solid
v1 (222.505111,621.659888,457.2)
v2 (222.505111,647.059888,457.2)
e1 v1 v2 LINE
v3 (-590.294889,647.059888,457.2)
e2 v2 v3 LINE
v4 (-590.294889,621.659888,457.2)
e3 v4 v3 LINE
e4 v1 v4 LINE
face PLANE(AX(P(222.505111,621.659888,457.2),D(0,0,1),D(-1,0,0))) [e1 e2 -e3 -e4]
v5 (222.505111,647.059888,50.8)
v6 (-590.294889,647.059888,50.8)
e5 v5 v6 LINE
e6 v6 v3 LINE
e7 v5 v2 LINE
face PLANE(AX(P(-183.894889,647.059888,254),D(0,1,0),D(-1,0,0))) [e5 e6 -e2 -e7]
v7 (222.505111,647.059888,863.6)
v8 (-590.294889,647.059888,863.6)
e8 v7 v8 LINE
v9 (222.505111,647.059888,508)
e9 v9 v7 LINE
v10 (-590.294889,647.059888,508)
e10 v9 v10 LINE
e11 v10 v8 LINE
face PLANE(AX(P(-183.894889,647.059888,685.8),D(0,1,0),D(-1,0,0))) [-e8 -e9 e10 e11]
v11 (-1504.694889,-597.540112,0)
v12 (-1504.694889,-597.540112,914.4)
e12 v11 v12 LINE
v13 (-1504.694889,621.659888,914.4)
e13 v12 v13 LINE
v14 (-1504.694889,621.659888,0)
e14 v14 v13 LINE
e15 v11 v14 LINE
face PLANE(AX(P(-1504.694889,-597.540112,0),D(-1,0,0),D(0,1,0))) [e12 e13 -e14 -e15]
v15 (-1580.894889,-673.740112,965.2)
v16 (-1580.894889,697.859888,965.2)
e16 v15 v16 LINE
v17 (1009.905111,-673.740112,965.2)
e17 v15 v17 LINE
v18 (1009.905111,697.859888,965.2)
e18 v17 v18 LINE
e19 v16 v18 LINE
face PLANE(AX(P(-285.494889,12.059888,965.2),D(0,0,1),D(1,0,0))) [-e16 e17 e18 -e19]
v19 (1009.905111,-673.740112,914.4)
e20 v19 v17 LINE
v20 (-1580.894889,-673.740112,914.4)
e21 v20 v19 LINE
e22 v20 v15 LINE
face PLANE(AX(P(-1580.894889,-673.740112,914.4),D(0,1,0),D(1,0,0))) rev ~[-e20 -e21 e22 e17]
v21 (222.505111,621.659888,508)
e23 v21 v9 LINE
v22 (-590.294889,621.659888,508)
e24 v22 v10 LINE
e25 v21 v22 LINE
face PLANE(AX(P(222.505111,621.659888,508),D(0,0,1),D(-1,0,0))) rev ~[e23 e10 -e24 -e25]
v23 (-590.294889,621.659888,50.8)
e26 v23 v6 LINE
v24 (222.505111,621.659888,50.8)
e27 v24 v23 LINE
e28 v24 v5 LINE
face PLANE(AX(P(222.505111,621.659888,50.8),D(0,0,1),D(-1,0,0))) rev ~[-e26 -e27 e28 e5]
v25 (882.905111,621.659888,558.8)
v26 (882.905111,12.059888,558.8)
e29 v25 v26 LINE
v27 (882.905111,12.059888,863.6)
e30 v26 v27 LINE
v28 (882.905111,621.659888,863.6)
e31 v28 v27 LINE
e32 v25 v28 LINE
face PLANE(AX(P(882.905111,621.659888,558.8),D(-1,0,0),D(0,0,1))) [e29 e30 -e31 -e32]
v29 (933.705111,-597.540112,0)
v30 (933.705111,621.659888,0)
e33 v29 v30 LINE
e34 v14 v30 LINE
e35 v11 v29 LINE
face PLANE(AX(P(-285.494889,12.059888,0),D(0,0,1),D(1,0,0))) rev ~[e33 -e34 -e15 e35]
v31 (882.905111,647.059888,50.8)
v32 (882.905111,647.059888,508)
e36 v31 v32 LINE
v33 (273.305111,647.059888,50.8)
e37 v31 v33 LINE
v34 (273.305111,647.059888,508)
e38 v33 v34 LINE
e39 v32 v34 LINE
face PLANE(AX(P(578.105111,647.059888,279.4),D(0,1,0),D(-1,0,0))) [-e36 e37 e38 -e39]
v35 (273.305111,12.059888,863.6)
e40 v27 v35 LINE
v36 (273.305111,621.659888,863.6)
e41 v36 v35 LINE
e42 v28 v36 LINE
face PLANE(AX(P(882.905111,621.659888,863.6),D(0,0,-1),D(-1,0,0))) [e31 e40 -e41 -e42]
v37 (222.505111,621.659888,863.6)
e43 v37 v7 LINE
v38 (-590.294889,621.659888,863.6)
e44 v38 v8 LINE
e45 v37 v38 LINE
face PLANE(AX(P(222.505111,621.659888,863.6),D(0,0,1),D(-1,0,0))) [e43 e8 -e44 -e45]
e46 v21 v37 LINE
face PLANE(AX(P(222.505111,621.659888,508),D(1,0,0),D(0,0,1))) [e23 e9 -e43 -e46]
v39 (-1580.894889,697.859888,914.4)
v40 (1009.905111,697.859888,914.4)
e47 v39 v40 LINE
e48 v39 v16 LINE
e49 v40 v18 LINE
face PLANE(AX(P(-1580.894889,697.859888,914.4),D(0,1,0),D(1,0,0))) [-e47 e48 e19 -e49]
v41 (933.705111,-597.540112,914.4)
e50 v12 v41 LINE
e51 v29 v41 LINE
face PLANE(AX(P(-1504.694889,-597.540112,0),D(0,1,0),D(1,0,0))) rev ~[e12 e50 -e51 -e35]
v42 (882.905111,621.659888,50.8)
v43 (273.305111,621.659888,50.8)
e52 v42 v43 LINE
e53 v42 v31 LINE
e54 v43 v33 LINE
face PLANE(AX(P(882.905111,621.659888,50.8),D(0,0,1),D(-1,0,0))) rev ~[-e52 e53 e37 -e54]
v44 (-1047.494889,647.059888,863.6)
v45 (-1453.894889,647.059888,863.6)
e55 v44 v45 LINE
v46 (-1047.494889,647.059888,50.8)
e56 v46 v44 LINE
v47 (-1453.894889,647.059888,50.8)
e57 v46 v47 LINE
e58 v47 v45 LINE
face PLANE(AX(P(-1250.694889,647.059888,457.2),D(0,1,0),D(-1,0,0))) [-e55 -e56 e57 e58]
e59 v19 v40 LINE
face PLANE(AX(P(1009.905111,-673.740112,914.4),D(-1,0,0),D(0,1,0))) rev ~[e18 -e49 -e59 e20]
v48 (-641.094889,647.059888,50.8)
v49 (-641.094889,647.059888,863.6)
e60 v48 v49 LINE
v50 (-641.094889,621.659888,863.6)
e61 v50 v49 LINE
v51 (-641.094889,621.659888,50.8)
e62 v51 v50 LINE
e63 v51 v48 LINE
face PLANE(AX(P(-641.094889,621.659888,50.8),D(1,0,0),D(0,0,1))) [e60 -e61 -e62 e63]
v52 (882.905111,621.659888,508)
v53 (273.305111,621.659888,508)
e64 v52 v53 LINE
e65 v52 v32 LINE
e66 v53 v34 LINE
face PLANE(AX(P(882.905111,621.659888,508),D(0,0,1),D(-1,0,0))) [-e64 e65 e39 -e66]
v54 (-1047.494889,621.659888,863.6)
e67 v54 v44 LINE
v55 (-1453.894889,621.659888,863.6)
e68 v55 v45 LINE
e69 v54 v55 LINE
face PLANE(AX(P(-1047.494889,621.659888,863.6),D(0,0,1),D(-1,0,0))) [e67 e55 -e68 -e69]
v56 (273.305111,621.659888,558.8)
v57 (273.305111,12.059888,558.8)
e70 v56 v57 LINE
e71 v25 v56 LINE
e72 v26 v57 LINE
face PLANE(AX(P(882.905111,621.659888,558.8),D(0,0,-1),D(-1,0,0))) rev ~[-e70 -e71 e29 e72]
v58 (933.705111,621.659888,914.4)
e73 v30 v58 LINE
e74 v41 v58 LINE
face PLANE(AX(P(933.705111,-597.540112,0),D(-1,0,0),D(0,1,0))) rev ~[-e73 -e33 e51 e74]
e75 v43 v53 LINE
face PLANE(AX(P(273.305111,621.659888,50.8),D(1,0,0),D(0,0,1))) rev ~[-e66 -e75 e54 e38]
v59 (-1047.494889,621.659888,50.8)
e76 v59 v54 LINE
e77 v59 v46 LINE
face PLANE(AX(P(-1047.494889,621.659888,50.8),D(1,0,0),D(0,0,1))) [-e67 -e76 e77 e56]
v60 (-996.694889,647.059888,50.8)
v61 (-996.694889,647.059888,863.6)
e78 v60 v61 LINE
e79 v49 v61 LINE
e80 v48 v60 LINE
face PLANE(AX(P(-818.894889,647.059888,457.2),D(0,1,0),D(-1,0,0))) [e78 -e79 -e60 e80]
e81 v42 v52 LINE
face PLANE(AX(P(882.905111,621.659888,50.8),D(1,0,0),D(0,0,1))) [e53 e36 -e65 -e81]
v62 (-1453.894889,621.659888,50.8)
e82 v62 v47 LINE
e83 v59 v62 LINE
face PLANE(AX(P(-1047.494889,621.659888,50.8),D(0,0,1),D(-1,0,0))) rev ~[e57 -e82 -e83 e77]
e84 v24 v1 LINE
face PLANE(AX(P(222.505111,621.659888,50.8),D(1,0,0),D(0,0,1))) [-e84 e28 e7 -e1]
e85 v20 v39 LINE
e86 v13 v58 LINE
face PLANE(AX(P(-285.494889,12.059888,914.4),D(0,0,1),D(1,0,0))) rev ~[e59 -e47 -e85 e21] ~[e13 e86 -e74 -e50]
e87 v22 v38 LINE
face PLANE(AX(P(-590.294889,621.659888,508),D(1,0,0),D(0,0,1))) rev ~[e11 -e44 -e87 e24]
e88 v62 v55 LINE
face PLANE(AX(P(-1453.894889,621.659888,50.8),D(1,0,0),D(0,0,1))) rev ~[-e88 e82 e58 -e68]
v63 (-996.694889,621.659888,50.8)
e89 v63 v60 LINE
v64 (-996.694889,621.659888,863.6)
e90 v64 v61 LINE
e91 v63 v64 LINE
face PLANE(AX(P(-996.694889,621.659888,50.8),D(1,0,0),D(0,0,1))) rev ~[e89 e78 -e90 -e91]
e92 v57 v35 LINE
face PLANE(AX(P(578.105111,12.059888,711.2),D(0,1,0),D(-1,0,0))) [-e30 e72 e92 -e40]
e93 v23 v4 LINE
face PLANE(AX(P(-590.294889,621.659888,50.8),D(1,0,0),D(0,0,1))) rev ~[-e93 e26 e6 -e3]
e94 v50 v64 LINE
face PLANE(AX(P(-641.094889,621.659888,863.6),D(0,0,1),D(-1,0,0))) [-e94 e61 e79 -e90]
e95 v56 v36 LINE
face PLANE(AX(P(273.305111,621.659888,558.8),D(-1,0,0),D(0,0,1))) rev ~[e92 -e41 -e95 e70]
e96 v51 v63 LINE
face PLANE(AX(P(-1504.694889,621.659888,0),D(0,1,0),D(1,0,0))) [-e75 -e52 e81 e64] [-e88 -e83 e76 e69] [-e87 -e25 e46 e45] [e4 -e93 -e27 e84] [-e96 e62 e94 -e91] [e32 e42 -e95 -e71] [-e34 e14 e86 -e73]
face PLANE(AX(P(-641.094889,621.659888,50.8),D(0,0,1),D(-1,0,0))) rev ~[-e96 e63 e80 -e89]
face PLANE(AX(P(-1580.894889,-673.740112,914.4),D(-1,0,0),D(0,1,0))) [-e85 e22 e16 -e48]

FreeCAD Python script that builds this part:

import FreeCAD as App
import Part
import Sketcher

V = App.Vector
Q = App.Units.Quantity

doc = App.newDocument("Part")
body = doc.addObject("PartDesign::Body", "Body")

sketch1 = doc.addObject("Sketcher::SketchObject", "Sketch")
body.addObject(sketch1)
sketch1.AttachmentSupport = (doc.XY_Plane, [""])
sketch1.MapMode = "FlatFace"
sketch1.addGeometry(Part.LineSegment(V(-1505, 622, 0), V(-1505, -598, 0)), False)
sketch1.addGeometry(Part.LineSegment(V(-1505, -598, 0), V(934, -598, 0)), False)
sketch1.addGeometry(Part.LineSegment(V(934, -598, 0), V(934, 622, 0)), False)
sketch1.addGeometry(Part.LineSegment(V(934, 622, 0), V(-1505, 622, 0)), False)
sketch1.addConstraint(Sketcher.Constraint("Coincident", 0, 2, 1, 1))
sketch1.addConstraint(Sketcher.Constraint("Coincident", 1, 2, 2, 1))
sketch1.addConstraint(Sketcher.Constraint("Coincident", 2, 2, 3, 1))
sketch1.addConstraint(Sketcher.Constraint("Coincident", 3, 2, 0, 1))
sketch1.addConstraint(Sketcher.Constraint("Vertical", 0))
sketch1.addConstraint(Sketcher.Constraint("Horizontal", 1))
sketch1.addConstraint(Sketcher.Constraint("Vertical", 2))
sketch1.addConstraint(Sketcher.Constraint("Horizontal", 3))
sketch1.addConstraint(Sketcher.Constraint("DistanceX", 1, 1, 1, 2, Q("96 in")))
sketch1.addConstraint(Sketcher.Constraint("DistanceY", 0, 2, 0, 1, Q("48 in")))
sketch1.addConstraint(Sketcher.Constraint("DistanceX", 0, 2, -1, 1, Q("1504.694889 mm")))
sketch1.addConstraint(Sketcher.Constraint("DistanceY", 0, 2, -1, 1, Q("597.540112 mm")))
pad1 = doc.addObject("PartDesign::Pad", "Pad")
body.addObject(pad1)
pad1.Profile = sketch1
pad1.Length = Q("36 in")

sketch2 = doc.addObject("Sketcher::SketchObject", "Sketch001")
body.addObject(sketch2)
sketch2.AttachmentSupport = (doc.XY_Plane, [""])
sketch2.MapMode = "FlatFace"
sketch2.AttachmentOffset = App.Placement(V(0, 0, 36 * 25.4), App.Rotation())
sketch2.addGeometry(Part.LineSegment(V(-1581, 698, 0), V(-1581, -674, 0)), False)
sketch2.addGeometry(Part.LineSegment(V(-1581, -674, 0), V(1010, -674, 0)), False)
sketch2.addGeometry(Part.LineSegment(V(1010, -674, 0), V(1010, 698, 0)), False)
sketch2.addGeometry(Part.LineSegment(V(1010, 698, 0), V(-1581, 698, 0)), False)
sketch2.addConstraint(Sketcher.Constraint("Coincident", 0, 2, 1, 1))
sketch2.addConstraint(Sketcher.Constraint("Coincident", 1, 2, 2, 1))
sketch2.addConstraint(Sketcher.Constraint("Coincident", 2, 2, 3, 1))
sketch2.addConstraint(Sketcher.Constraint("Coincident", 3, 2, 0, 1))
sketch2.addConstraint(Sketcher.Constraint("Vertical", 0))
sketch2.addConstraint(Sketcher.Constraint("Horizontal", 1))
sketch2.addConstraint(Sketcher.Constraint("Vertical", 2))
sketch2.addConstraint(Sketcher.Constraint("Horizontal", 3))
sketch2.addConstraint(Sketcher.Constraint("DistanceX", 1, 1, 1, 2, Q("102 in")))
sketch2.addConstraint(Sketcher.Constraint("DistanceY", 0, 2, 0, 1, Q("54 in")))
sketch2.addConstraint(Sketcher.Constraint("DistanceX", 0, 2, -1, 1, Q("1580.894889 mm")))
sketch2.addConstraint(Sketcher.Constraint("DistanceY", 0, 2, -1, 1, Q("673.740112 mm")))
pad2 = doc.addObject("PartDesign::Pad", "Pad001")
body.addObject(pad2)
pad2.Profile = sketch2
pad2.Length = Q("2 in")

sketch3 = doc.addObject("Sketcher::SketchObject", "Sketch002")
body.addObject(sketch3)
sketch3.AttachmentSupport = (doc.XZ_Plane, [""])
sketch3.MapMode = "FlatFace"
sketch3.AttachmentOffset = App.Placement(V(0, 0, -621.659888), App.Rotation())
sketch3.addGeometry(Part.LineSegment(V(883, 864, 0), V(883, 559, 0)), False)
sketch3.addGeometry(Part.LineSegment(V(883, 559, 0), V(273, 559, 0)), False)
sketch3.addGeometry(Part.LineSegment(V(273, 559, 0), V(273, 864, 0)), False)
sketch3.addGeometry(Part.LineSegment(V(273, 864, 0), V(883, 864, 0)), False)
sketch3.addConstraint(Sketcher.Constraint("Coincident", 0, 2, 1, 1))
sketch3.addConstraint(Sketcher.Constraint("Coincident", 1, 2, 2, 1))
sketch3.addConstraint(Sketcher.Constraint("Coincident", 2, 2, 3, 1))
sketch3.addConstraint(Sketcher.Constraint("Coincident", 3, 2, 0, 1))
sketch3.addConstraint(Sketcher.Constraint("Vertical", 0))
sketch3.addConstraint(Sketcher.Constraint("Horizontal", 1))
sketch3.addConstraint(Sketcher.Constraint("Vertical", 2))
sketch3.addConstraint(Sketcher.Constraint("Horizontal", 3))
sketch3.addConstraint(Sketcher.Constraint("DistanceX", 1, 2, 1, 1, Q("24 in")))
sketch3.addConstraint(Sketcher.Constraint("DistanceY", 0, 2, 0, 1, Q("12 in")))
sketch3.addConstraint(Sketcher.Constraint("DistanceY", -1, 1, 0, 2, Q("22 in")))
sketch3.addConstraint(Sketcher.Constraint("DistanceX", -1, 1, 0, 2, Q("882.905111 mm")))
pocket1 = doc.addObject("PartDesign::Pocket", "Pocket")
body.addObject(pocket1)
pocket1.Profile = sketch3
pocket1.Length = Q("24 in")
pocket1.Reversed = True

sketch4 = doc.addObject("Sketcher::SketchObject", "Sketch003")
body.addObject(sketch4)
sketch4.AttachmentSupport = (doc.XZ_Plane, [""])
sketch4.MapMode = "FlatFace"
sketch4.AttachmentOffset = App.Placement(V(0, 0, -621.659888), App.Rotation())
sketch4.addGeometry(Part.LineSegment(V(883, 508, 0), V(883, 51, 0)), False)
sketch4.addGeometry(Part.LineSegment(V(883, 51, 0), V(273, 51, 0)), False)
sketch4.addGeometry(Part.LineSegment(V(273, 51, 0), V(273, 508, 0)), False)
sketch4.addGeometry(Part.LineSegment(V(273, 508, 0), V(883, 508, 0)), False)
sketch4.addGeometry(Part.LineSegment(V(223, 864, 0), V(223, 508, 0)), False)
sketch4.addGeometry(Part.LineSegment(V(223, 508, 0), V(-590, 508, 0)), False)
sketch4.addGeometry(Part.LineSegment(V(-590, 508, 0), V(-590, 864, 0)), False)
sketch4.addGeometry(Part.LineSegment(V(-590, 864, 0), V(223, 864, 0)), False)
sketch4.addGeometry(Part.LineSegment(V(223, 457, 0), V(223, 51, 0)), False)
sketch4.addGeometry(Part.LineSegment(V(223, 51, 0), V(-590, 51, 0)), False)
sketch4.addGeometry(Part.LineSegment(V(-590, 51, 0), V(-590, 457, 0)), False)
sketch4.addGeometry(Part.LineSegment(V(-590, 457, 0), V(223, 457, 0)), False)
sketch4.addGeometry(Part.LineSegment(V(-641, 864, 0), V(-641, 51, 0)), False)
sketch4.addGeometry(Part.LineSegment(V(-641, 51, 0), V(-997, 51, 0)), False)
sketch4.addGeometry(Part.LineSegment(V(-997, 51, 0), V(-997, 864, 0)), False)
sketch4.addGeometry(Part.LineSegment(V(-997, 864, 0), V(-641, 864, 0)), False)
sketch4.addGeometry(Part.LineSegment(V(-1047, 864, 0), V(-1047, 51, 0)), False)
sketch4.addGeometry(Part.LineSegment(V(-1047, 51, 0), V(-1454, 51, 0)), False)
sketch4.addGeometry(Part.LineSegment(V(-1454, 51, 0), V(-1454, 864, 0)), False)
sketch4.addGeometry(Part.LineSegment(V(-1454, 864, 0), V(-1047, 864, 0)), False)
sketch4.addConstraint(Sketcher.Constraint("Coincident", 0, 2, 1, 1))
sketch4.addConstraint(Sketcher.Constraint("Coincident", 1, 2, 2, 1))
sketch4.addConstraint(Sketcher.Constraint("Coincident", 2, 2, 3, 1))
sketch4.addConstraint(Sketcher.Constraint("Coincident", 3, 2, 0, 1))
sketch4.addConstraint(Sketcher.Constraint("Coincident", 4, 2, 5, 1))
sketch4.addConstraint(Sketcher.Constraint("Coincident", 5, 2, 6, 1))
sketch4.addConstraint(Sketcher.Constraint("Coincident", 6, 2, 7, 1))
sketch4.addConstraint(Sketcher.Constraint("Coincident", 7, 2, 4, 1))
sketch4.addConstraint(Sketcher.Constraint("Coincident", 8, 2, 9, 1))
sketch4.addConstraint(Sketcher.Constraint("Coincident", 9, 2, 10, 1))
sketch4.addConstraint(Sketcher.Constraint("Coincident", 10, 2, 11, 1))
sketch4.addConstraint(Sketcher.Constraint("Coincident", 11, 2, 8, 1))
sketch4.addConstraint(Sketcher.Constraint("Coincident", 12, 2, 13, 1))
sketch4.addConstraint(Sketcher.Constraint("Coincident", 13, 2, 14, 1))
sketch4.addConstraint(Sketcher.Constraint("Coincident", 14, 2, 15, 1))
sketch4.addConstraint(Sketcher.Constraint("Coincident", 15, 2, 12, 1))
sketch4.addConstraint(Sketcher.Constraint("Coincident", 16, 2, 17, 1))
sketch4.addConstraint(Sketcher.Constraint("Coincident", 17, 2, 18, 1))
sketch4.addConstraint(Sketcher.Constraint("Coincident", 18, 2, 19, 1))
sketch4.addConstraint(Sketcher.Constraint("Coincident", 19, 2, 16, 1))
sketch4.addConstraint(Sketcher.Constraint("Vertical", 0))
sketch4.addConstraint(Sketcher.Constraint("Horizontal", 1))
sketch4.addConstraint(Sketcher.Constraint("Vertical", 2))
sketch4.addConstraint(Sketcher.Constraint("Horizontal", 3))
sketch4.addConstraint(Sketcher.Constraint("Vertical", 4))
sketch4.addConstraint(Sketcher.Constraint("Horizontal", 5))
sketch4.addConstraint(Sketcher.Constraint("Vertical", 6))
sketch4.addConstraint(Sketcher.Constraint("Horizontal", 7))
sketch4.addConstraint(Sketcher.Constraint("Vertical", 8))
sketch4.addConstraint(Sketcher.Constraint("Horizontal", 9))
sketch4.addConstraint(Sketcher.Constraint("Vertical", 10))
sketch4.addConstraint(Sketcher.Constraint("Horizontal", 11))
sketch4.addConstraint(Sketcher.Constraint("Vertical", 12))
sketch4.addConstraint(Sketcher.Constraint("Horizontal", 13))
sketch4.addConstraint(Sketcher.Constraint("Vertical", 14))
sketch4.addConstraint(Sketcher.Constraint("Horizontal", 15))
sketch4.addConstraint(Sketcher.Constraint("Vertical", 16))
sketch4.addConstraint(Sketcher.Constraint("Horizontal", 17))
sketch4.addConstraint(Sketcher.Constraint("Vertical", 18))
sketch4.addConstraint(Sketcher.Constraint("Horizontal", 19))
sketch4.addConstraint(Sketcher.Constraint("Horizontal", 3, 2, 4, 2))
sketch4.addConstraint(Sketcher.Constraint("Horizontal", 1, 2, 8, 2))
sketch4.addConstraint(Sketcher.Constraint("Horizontal", 9, 2, 12, 2))
sketch4.addConstraint(Sketcher.Constraint("Horizontal", 7, 2, 14, 2))
sketch4.addConstraint(Sketcher.Constraint("Horizontal", 13, 2, 16, 2))
sketch4.addConstraint(Sketcher.Constraint("Horizontal", 15, 2, 18, 2))
sketch4.addConstraint(Sketcher.Constraint("Vertical", 7, 2, 8, 2))
sketch4.addConstraint(Sketcher.Constraint("Vertical", 6, 2, 9, 2))
sketch4.addConstraint(Sketcher.Constraint("Equal", 15, 4))
sketch4.addConstraint(Sketcher.Constraint("Equal", 19, 8))
sketch4.addConstraint(Sketcher.Constraint("Equal", 11, 12))
sketch4.addConstraint(Sketcher.Constraint("DistanceX", 1, 2, 1, 1, Q("24 in")))
sketch4.addConstraint(Sketcher.Constraint("DistanceX", 5, 2, 5, 1, Q("32 in")))
sketch4.addConstraint(Sketcher.Constraint("DistanceX", 13, 2, 13, 1, Q("14 in")))
sketch4.addConstraint(Sketcher.Constraint("DistanceX", 17, 2, 17, 1, Q("16 in")))
sketch4.addConstraint(Sketcher.Constraint("DistanceY", -1, 1, 0, 2, Q("2 in")))
sketch4.addConstraint(Sketcher.Constraint("DistanceX", 4, 2, 2, 2, Q("2 in")))
sketch4.addConstraint(Sketcher.Constraint("DistanceX", 12, 2, 9, 2, Q("2 in")))
sketch4.addConstraint(Sketcher.Constraint("DistanceX", 16, 2, 13, 2, Q("2 in")))
sketch4.addConstraint(Sketcher.Constraint("DistanceX", -1, 1, 0, 2, Q("882.905111 mm")))
pad3 = doc.addObject("PartDesign::Pad", "Pad002")
body.addObject(pad3)
pad3.Profile = sketch4
pad3.Length = Q("1 in")
pad3.Reversed = True

doc.recompute()
